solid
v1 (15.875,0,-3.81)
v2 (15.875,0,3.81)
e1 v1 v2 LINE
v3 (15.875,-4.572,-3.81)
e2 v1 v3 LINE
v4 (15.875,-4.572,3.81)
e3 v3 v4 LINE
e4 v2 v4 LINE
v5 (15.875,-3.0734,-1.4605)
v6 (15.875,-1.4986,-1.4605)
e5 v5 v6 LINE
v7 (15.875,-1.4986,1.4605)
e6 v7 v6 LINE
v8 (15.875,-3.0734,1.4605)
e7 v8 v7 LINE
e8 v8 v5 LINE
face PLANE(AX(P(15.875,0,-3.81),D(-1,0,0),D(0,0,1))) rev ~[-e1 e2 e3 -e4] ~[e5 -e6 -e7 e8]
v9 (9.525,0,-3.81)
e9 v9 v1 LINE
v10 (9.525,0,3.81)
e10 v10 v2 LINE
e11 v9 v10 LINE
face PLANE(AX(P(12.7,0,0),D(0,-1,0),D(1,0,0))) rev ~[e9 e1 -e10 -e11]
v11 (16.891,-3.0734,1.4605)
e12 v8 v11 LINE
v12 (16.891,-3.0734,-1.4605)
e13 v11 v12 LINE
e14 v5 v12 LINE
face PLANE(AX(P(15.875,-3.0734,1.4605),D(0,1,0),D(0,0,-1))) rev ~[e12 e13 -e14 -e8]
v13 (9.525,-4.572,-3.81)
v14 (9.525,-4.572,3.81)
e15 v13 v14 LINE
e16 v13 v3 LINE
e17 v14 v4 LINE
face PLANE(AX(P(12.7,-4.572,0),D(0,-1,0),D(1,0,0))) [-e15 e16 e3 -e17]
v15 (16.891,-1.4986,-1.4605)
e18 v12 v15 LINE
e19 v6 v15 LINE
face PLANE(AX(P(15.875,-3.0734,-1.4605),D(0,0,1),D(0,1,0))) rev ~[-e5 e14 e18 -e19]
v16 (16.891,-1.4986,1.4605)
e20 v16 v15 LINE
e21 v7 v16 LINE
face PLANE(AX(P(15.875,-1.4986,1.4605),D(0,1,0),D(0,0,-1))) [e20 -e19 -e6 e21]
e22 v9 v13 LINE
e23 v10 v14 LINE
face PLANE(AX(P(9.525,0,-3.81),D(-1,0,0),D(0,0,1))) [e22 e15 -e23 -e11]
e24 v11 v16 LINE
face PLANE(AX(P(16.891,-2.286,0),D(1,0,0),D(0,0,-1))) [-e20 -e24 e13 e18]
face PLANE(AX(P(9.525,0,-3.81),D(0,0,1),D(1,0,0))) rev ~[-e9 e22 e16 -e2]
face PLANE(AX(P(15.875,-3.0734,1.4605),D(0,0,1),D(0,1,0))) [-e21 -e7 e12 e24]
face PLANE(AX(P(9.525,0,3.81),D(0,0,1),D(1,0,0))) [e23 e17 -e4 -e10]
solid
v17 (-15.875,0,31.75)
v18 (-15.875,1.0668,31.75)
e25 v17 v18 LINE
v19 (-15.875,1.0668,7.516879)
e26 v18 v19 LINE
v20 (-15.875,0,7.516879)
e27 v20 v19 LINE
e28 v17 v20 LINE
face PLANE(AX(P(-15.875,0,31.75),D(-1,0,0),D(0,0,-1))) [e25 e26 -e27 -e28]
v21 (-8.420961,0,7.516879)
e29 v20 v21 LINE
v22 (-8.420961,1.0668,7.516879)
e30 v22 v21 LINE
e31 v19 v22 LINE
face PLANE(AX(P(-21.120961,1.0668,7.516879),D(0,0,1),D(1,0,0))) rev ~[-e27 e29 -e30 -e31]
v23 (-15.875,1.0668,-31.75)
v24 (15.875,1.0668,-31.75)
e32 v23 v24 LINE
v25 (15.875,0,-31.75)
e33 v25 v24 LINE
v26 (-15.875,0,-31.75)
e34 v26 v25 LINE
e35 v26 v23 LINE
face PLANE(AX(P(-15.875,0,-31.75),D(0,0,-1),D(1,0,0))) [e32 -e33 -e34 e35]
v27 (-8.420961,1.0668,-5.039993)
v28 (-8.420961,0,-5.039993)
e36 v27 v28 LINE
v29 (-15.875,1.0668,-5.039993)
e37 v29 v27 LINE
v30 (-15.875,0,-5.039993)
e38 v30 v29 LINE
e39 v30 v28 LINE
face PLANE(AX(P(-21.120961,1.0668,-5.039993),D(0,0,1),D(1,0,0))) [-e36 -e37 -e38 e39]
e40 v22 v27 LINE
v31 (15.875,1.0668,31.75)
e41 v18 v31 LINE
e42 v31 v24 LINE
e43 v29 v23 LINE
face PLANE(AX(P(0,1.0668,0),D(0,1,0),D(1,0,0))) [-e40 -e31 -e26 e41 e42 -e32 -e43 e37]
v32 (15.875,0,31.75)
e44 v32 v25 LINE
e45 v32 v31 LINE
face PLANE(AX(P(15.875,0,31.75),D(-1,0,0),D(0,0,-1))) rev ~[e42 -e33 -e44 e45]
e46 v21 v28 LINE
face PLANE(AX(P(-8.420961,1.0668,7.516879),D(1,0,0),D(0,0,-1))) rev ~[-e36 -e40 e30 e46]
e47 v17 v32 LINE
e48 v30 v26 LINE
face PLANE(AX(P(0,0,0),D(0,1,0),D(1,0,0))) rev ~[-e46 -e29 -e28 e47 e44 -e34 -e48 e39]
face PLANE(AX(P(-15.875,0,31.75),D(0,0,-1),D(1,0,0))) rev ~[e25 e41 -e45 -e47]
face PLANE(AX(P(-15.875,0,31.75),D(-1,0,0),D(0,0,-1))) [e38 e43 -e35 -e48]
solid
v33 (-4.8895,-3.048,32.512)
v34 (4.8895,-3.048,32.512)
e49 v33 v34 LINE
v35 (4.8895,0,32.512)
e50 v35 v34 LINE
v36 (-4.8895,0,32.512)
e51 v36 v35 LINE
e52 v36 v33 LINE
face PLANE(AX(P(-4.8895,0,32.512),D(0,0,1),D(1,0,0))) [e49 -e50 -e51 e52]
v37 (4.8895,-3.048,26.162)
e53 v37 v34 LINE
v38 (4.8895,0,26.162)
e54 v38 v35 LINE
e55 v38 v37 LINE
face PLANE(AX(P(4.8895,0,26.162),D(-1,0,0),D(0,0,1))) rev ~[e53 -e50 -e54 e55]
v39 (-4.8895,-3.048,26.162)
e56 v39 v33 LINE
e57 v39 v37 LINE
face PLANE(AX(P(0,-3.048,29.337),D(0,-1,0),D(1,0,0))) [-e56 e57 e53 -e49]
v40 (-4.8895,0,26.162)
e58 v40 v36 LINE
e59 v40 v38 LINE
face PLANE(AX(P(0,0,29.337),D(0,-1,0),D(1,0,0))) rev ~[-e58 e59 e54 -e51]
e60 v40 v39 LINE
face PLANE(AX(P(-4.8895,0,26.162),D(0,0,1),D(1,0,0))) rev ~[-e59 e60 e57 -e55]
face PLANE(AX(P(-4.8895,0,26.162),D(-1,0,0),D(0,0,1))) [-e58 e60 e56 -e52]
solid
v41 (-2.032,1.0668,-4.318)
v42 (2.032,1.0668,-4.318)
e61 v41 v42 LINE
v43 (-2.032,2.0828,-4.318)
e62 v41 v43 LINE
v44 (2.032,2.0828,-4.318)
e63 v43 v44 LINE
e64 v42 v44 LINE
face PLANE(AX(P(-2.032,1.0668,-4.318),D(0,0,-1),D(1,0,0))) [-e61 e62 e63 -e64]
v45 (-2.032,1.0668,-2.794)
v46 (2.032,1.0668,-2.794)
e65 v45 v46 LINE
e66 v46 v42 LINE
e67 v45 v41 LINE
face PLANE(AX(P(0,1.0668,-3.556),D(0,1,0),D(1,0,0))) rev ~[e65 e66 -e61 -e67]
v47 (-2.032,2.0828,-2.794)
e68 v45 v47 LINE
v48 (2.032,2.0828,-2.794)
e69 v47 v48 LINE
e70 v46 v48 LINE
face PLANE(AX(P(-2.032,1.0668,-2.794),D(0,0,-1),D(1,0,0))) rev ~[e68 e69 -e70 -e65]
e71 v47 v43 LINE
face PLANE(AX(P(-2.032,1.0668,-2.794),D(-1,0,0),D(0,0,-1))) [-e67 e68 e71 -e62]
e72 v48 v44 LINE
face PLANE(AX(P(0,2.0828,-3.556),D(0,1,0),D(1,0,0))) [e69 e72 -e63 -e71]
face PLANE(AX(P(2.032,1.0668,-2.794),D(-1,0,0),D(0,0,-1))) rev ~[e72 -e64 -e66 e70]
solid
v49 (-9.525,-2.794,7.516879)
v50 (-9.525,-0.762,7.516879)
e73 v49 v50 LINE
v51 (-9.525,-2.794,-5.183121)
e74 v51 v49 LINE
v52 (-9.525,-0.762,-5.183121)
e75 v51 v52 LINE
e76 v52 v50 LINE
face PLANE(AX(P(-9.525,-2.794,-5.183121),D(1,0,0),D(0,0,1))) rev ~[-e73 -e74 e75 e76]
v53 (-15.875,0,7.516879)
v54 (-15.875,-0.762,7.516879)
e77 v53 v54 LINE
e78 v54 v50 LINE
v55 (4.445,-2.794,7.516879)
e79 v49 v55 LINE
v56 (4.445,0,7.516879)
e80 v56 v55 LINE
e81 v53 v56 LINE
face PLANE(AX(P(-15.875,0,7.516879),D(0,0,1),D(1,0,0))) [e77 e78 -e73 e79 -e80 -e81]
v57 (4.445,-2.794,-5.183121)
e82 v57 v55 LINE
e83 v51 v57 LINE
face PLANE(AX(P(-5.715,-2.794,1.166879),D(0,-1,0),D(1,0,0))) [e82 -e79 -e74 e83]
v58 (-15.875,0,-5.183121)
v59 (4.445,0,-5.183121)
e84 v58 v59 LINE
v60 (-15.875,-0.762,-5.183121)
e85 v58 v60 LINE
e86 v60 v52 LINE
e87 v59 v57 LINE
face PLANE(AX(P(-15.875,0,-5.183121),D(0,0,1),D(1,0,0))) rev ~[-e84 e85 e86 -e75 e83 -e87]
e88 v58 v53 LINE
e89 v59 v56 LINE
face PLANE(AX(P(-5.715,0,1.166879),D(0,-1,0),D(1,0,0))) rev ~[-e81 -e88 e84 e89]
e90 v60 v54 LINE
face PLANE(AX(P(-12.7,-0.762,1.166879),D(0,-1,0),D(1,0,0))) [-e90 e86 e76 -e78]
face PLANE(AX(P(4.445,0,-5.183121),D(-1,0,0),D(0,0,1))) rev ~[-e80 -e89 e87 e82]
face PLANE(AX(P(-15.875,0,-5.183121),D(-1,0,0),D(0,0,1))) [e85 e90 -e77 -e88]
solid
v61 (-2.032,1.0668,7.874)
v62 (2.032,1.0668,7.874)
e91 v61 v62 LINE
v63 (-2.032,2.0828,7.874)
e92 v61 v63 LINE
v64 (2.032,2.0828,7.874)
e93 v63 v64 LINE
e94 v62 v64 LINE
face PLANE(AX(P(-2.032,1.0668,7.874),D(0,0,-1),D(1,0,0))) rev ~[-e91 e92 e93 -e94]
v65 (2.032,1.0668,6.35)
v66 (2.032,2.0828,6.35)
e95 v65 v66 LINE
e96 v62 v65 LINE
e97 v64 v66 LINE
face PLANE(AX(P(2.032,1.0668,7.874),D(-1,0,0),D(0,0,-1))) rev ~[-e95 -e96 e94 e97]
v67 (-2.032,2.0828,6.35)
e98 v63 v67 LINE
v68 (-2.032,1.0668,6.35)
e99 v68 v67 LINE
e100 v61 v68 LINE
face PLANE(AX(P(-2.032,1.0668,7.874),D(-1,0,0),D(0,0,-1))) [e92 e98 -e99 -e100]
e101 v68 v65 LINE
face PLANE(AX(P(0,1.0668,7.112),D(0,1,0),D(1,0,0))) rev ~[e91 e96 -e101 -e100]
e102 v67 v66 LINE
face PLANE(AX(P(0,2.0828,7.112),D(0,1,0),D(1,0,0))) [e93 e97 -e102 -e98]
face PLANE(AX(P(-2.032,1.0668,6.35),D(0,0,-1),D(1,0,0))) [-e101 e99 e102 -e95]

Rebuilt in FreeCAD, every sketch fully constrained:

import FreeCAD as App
import Part
import Sketcher

V = App.Vector
Q = App.Units.Quantity

doc = App.newDocument("Part")
body = doc.addObject("PartDesign::Body", "Body")

sketch1 = body.newObject("Sketcher::SketchObject", "Sketch")
sketch1.AttachmentSupport = (doc.getObject("XZ_Plane"), [""])
sketch1.MapMode = "FlatFace"
sketch1.addGeometry([
    Part.LineSegment(V(-16, -32, 0), V(-16, 32, 0)),
    Part.LineSegment(V(-16, 32, 0), V(16, 32, 0)),
    Part.LineSegment(V(16, 32, 0), V(16, -32, 0)),
    Part.LineSegment(V(16, -32, 0), V(-16, -32, 0)),
], False)
sketch1.addConstraint([
    Sketcher.Constraint("Coincident", 0, 2, 1, 1),
    Sketcher.Constraint("Coincident", 1, 2, 2, 1),
    Sketcher.Constraint("Coincident", 2, 2, 3, 1),
    Sketcher.Constraint("Coincident", 3, 2, 0, 1),
    Sketcher.Constraint("Vertical", 0),
    Sketcher.Constraint("Horizontal", 1),
    Sketcher.Constraint("Vertical", 2),
    Sketcher.Constraint("Horizontal", 3),
    Sketcher.Constraint("Symmetric", 0, 2, 2, 2, -1, 1),
    Sketcher.Constraint("DistanceY", 0, 1, 0, 2, Q("2.5 in")),
    Sketcher.Constraint("DistanceX", 1, 1, 1, 2, Q("1.25 in")),
])
pad1 = body.newObject("PartDesign::Pad", "Pad")
pad1.Profile = sketch1
pad1.Length = Q("0.042 in")
pad1.Reversed = True

sketch2 = body.newObject("Sketcher::SketchObject", "Sketch001")
sketch2.AttachmentSupport = (doc.getObject("XZ_Plane"), [""])
sketch2.MapMode = "FlatFace"
sketch2.AttachmentOffset = App.Placement(V(0, 0, -0.042 * 25.4), App.Rotation())
sketch2.addGeometry([
    Part.LineSegment(V(-21, -5, 0), V(-21, 8, 0)),
    Part.LineSegment(V(-21, 8, 0), V(-8, 8, 0)),
    Part.LineSegment(V(-8, 8, 0), V(-8, -5, 0)),
    Part.LineSegment(V(-8, -5, 0), V(-21, -5, 0)),
], False)
sketch2.addConstraint([
    Sketcher.Constraint("Coincident", 0, 2, 1, 1),
    Sketcher.Constraint("Coincident", 1, 2, 2, 1),
    Sketcher.Constraint("Coincident", 2, 2, 3, 1),
    Sketcher.Constraint("Coincident", 3, 2, 0, 1),
    Sketcher.Constraint("Vertical", 0),
    Sketcher.Constraint("Horizontal", 1),
    Sketcher.Constraint("Vertical", 2),
    Sketcher.Constraint("Horizontal", 3),
    Sketcher.Constraint("DistanceX", 1, 1, 1, 2, Q("0.5 in")),
    Sketcher.Constraint("DistanceY", 0, 1, 0, 2, Q("12.556872 mm")),
    Sketcher.Constraint("DistanceX", 0, 2, -1, 1, Q("21.120961 mm")),
    Sketcher.Constraint("DistanceY", -1, 1, 0, 2, Q("7.516879 mm")),
])
pocket1 = body.newObject("PartDesign::Pocket", "Pocket")
pocket1.Profile = sketch2
pocket1.Length = Q("0.042 in")
pocket1.Reversed = True
body2 = doc.addObject("PartDesign::Body", "Body001")

sketch3 = body2.newObject("Sketcher::SketchObject", "Sketch002")
sketch3.AttachmentSupport = (doc.getObject("XZ_Plane001"), [""])
sketch3.MapMode = "FlatFace"
sketch3.addGeometry([
    Part.LineSegment(V(-5, 33, 0), V(-5, 26, 0)),
    Part.LineSegment(V(-5, 26, 0), V(5, 26, 0)),
    Part.LineSegment(V(5, 26, 0), V(5, 33, 0)),
    Part.LineSegment(V(5, 33, 0), V(-5, 33, 0)),
], False)
sketch3.addConstraint([
    Sketcher.Constraint("Coincident", 0, 2, 1, 1),
    Sketcher.Constraint("Coincident", 1, 2, 2, 1),
    Sketcher.Constraint("Coincident", 2, 2, 3, 1),
    Sketcher.Constraint("Coincident", 3, 2, 0, 1),
    Sketcher.Constraint("Vertical", 0),
    Sketcher.Constraint("Horizontal", 1),
    Sketcher.Constraint("Vertical", 2),
    Sketcher.Constraint("Horizontal", 3),
    Sketcher.Constraint("DistanceY", 0, 2, 0, 1, Q("0.25 in")),
    Sketcher.Constraint("DistanceX", 1, 1, 1, 2, Q("0.385 in")),
    Sketcher.Constraint("DistanceY", -1, 1, 0, 2, Q("1.03 in")),
    Sketcher.Constraint("DistanceX", 0, 2, -1, 1, Q("0.1925 in")),
])
pad2 = body2.newObject("PartDesign::Pad", "Pad001")
pad2.Profile = sketch3
pad2.Length = Q("0.12 in")
body3 = doc.addObject("PartDesign::Body", "Body002")

sketch4 = body3.newObject("Sketcher::SketchObject", "Sketch003")
sketch4.AttachmentSupport = (doc.getObject("XZ_Plane002"), [""])
sketch4.MapMode = "FlatFace"
sketch4.AttachmentOffset = App.Placement(V(0, 0, -0.042 * 25.4), App.Rotation())
sketch4.addGeometry([
    Part.LineSegment(V(-2, -4.3, 0), V(-2, -2.8, 0)),
    Part.LineSegment(V(-2, -2.8, 0), V(2, -2.8, 0)),
    Part.LineSegment(V(2, -2.8, 0), V(2, -4.3, 0)),
    Part.LineSegment(V(2, -4.3, 0), V(-2, -4.3, 0)),
], False)
sketch4.addConstraint([
    Sketcher.Constraint("Coincident", 0, 2, 1, 1),
    Sketcher.Constraint("Coincident", 1, 2, 2, 1),
    Sketcher.Constraint("Coincident", 2, 2, 3, 1),
    Sketcher.Constraint("Coincident", 3, 2, 0, 1),
    Sketcher.Constraint("Vertical", 0),
    Sketcher.Constraint("Horizontal", 1),
    Sketcher.Constraint("Vertical", 2),
    Sketcher.Constraint("Horizontal", 3),
    Sketcher.Constraint("DistanceX", 1, 1, 1, 2, Q("0.16 in")),
    Sketcher.Constraint("DistanceY", 0, 1, 0, 2, Q("0.06 in")),
    Sketcher.Constraint("DistanceX", 0, 2, -1, 1, Q("0.08 in")),
    Sketcher.Constraint("DistanceY", 0, 2, -1, 1, Q("0.11 in")),
])
pad3 = body3.newObject("PartDesign::Pad", "Pad002")
pad3.Profile = sketch4
pad3.Length = Q("0.04 in")
pad3.Reversed = True
body4 = doc.addObject("PartDesign::Body", "Body003")

sketch5 = body4.newObject("Sketcher::SketchObject", "Sketch004")
sketch5.AttachmentSupport = (doc.getObject("XZ_Plane003"), [""])
sketch5.MapMode = "FlatFace"
sketch5.AttachmentOffset = App.Placement(V(0, 0, -0.042 * 25.4), App.Rotation())
sketch5.addGeometry([
    Part.LineSegment(V(-2, 6.3, 0), V(-2, 7.9, 0)),
    Part.LineSegment(V(-2, 7.9, 0), V(2, 7.9, 0)),
    Part.LineSegment(V(2, 7.9, 0), V(2, 6.3, 0)),
    Part.LineSegment(V(2, 6.3, 0), V(-2, 6.3, 0)),
], False)
sketch5.addConstraint([
    Sketcher.Constraint("Coincident", 0, 2, 1, 1),
    Sketcher.Constraint("Coincident", 1, 2, 2, 1),
    Sketcher.Constraint("Coincident", 2, 2, 3, 1),
    Sketcher.Constraint("Coincident", 3, 2, 0, 1),
    Sketcher.Constraint("Vertical", 0),
    Sketcher.Constraint("Horizontal", 1),
    Sketcher.Constraint("Vertical", 2),
    Sketcher.Constraint("Horizontal", 3),
    Sketcher.Constraint("DistanceX", 1, 1, 1, 2, Q("0.16 in")),
    Sketcher.Constraint("DistanceY", 0, 1, 0, 2, Q("0.06 in")),
    Sketcher.Constraint("DistanceX", 0, 2, -1, 1, Q("0.08 in")),
    Sketcher.Constraint("DistanceY", -1, 1, 0, 2, Q("0.31 in")),
])
pad4 = body4.newObject("PartDesign::Pad", "Pad003")
pad4.Profile = sketch5
pad4.Length = Q("0.04 in")
pad4.Reversed = True
body5 = doc.addObject("PartDesign::Body", "Body004")

sketch6 = body5.newObject("Sketcher::SketchObject", "Sketch005")
sketch6.AttachmentSupport = (doc.getObject("XZ_Plane004"), [""])
sketch6.MapMode = "FlatFace"
sketch6.addGeometry([
    Part.LineSegment(V(-16, 8, 0), V(-16, -5, 0)),
    Part.LineSegment(V(-16, -5, 0), V(4, -5, 0)),
    Part.LineSegment(V(4, -5, 0), V(4, 8, 0)),
    Part.LineSegment(V(4, 8, 0), V(-16, 8, 0)),
], False)
sketch6.addConstraint([
    Sketcher.Constraint("Coincident", 0, 2, 1, 1),
    Sketcher.Constraint("Coincident", 1, 2, 2, 1),
    Sketcher.Constraint("Coincident", 2, 2, 3, 1),
    Sketcher.Constraint("Coincident", 3, 2, 0, 1),
    Sketcher.Constraint("Vertical", 0),
    Sketcher.Constraint("Horizontal", 1),
    Sketcher.Constraint("Vertical", 2),
    Sketcher.Constraint("Horizontal", 3),
    Sketcher.Constraint("DistanceX", 1, 1, 1, 2, Q("0.8 in")),
    Sketcher.Constraint("DistanceY", 0, 2, 0, 1, Q("0.5 in")),
    Sketcher.Constraint("DistanceX", 0, 2, -1, 1, Q("0.625 in")),
    Sketcher.Constraint("DistanceY", 0, 2, -1, 1, Q("5.183121 mm")),
])
pad5 = body5.newObject("PartDesign::Pad", "Pad004")
pad5.Profile = sketch6
pad5.Length = Q("0.11 in")

sketch7 = body5.newObject("Sketcher::SketchObject", "Sketch006")
sketch7.AttachmentSupport = (doc.getObject("XZ_Plane004"), [""])
sketch7.MapMode = "FlatFace"
sketch7.AttachmentOffset = App.Placement(V(0, 0, 0.11 * 25.4), App.Rotation())
sketch7.addGeometry([
    Part.LineSegment(V(-16, 8, 0), V(-16, -5, 0)),
    Part.LineSegment(V(-16, -5, 0), V(-10, -5, 0)),
    Part.LineSegment(V(-10, -5, 0), V(-10, 8, 0)),
    Part.LineSegment(V(-10, 8, 0), V(-16, 8, 0)),
], False)
sketch7.addConstraint([
    Sketcher.Constraint("Coincident", 0, 2, 1, 1),
    Sketcher.Constraint("Coincident", 1, 2, 2, 1),
    Sketcher.Constraint("Coincident", 2, 2, 3, 1),
    Sketcher.Constraint("Coincident", 3, 2, 0, 1),
    Sketcher.Constraint("Vertical", 0),
    Sketcher.Constraint("Horizontal", 1),
    Sketcher.Constraint("Vertical", 2),
    Sketcher.Constraint("Horizontal", 3),
    Sketcher.Constraint("DistanceY", 0, 2, 0, 1, Q("0.5 in")),
    Sketcher.Constraint("DistanceX", 1, 1, 1, 2, Q("0.25 in")),
    Sketcher.Constraint("DistanceX", 0, 2, -1, 1, Q("0.625 in")),
    Sketcher.Constraint("DistanceY", 0, 2, -1, 1, Q("5.183121 mm")),
])
pocket2 = body5.newObject("PartDesign::Pocket", "Pocket001")
pocket2.Profile = sketch7
pocket2.Length = Q("0.08 in")
body6 = doc.addObject("PartDesign::Body", "Body005")

sketch8 = body6.newObject("Sketcher::SketchObject", "Sketch007")
sketch8.AttachmentSupport = (doc.getObject("XZ_Plane005"), [""])
sketch8.MapMode = "FlatFace"
sketch8.addGeometry([
    Part.LineSegment(V(10, 4, 0), V(10, -4, 0)),
    Part.LineSegment(V(10, -4, 0), V(16, -4, 0)),
    Part.LineSegment(V(16, -4, 0), V(16, 4, 0)),
    Part.LineSegment(V(16, 4, 0), V(10, 4, 0)),
], False)
sketch8.addConstraint([
    Sketcher.Constraint("Coincident", 0, 2, 1, 1),
    Sketcher.Constraint("Coincident", 1, 2, 2, 1),
    Sketcher.Constraint("Coincident", 2, 2, 3, 1),
    Sketcher.Constraint("Coincident", 3, 2, 0, 1),
    Sketcher.Constraint("Vertical", 0),
    Sketcher.Constraint("Horizontal", 1),
    Sketcher.Constraint("Vertical", 2),
    Sketcher.Constraint("Horizontal", 3),
    Sketcher.Constraint("DistanceY", 0, 2, 0, 1, Q("0.3 in")),
    Sketcher.Constraint("DistanceX", 1, 1, 1, 2, Q("0.25 in")),
    Sketcher.Constraint("DistanceY", 0, 2, -1, 1, Q("0.15 in")),
    Sketcher.Constraint("DistanceX", -1, 1, 0, 2, Q("0.375 in")),
])
pad6 = body6.newObject("PartDesign::Pad", "Pad005")
pad6.Profile = sketch8
pad6.Length = Q("0.18 in")

sketch9 = body6.newObject("Sketcher::SketchObject", "Sketch008")
sketch9.AttachmentSupport = (doc.getObject("YZ_Plane005"), [""])
sketch9.MapMode = "FlatFace"
sketch9.AttachmentOffset = App.Placement(V(0, 0, 0.625 * 25.4), App.Rotation())
sketch9.addGeometry([
    Part.LineSegment(V(-1.5, 1.5, 0), V(-3.1, 1.5, 0)),
    Part.LineSegment(V(-3.1, 1.5, 0), V(-3.1, -1.5, 0)),
    Part.LineSegment(V(-3.1, -1.5, 0), V(-1.5, -1.5, 0)),
    Part.LineSegment(V(-1.5, -1.5, 0), V(-1.5, 1.5, 0)),
], False)
sketch9.addConstraint([
    Sketcher.Constraint("Coincident", 0, 2, 1, 1),
    Sketcher.Constraint("Coincident", 1, 2, 2, 1),
    Sketcher.Constraint("Coincident", 2, 2, 3, 1),
    Sketcher.Constraint("Coincident", 3, 2, 0, 1),
    Sketcher.Constraint("Horizontal", 0),
    Sketcher.Constraint("Vertical", 1),
    Sketcher.Constraint("Horizontal", 2),
    Sketcher.Constraint("Vertical", 3),
    Sketcher.Constraint("DistanceX", 0, 2, 0, 1, Q("0.062 in")),
    Sketcher.Constraint("DistanceY", 1, 2, 1, 1, Q("0.115 in")),
    Sketcher.Constraint("DistanceX", 0, 2, -1, 1, Q("0.121 in")),
    Sketcher.Constraint("DistanceY", -1, 1, 0, 2, Q("0.0575 in")),
])
pad7 = body6.newObject("PartDesign::Pad", "Pad006")
pad7.Profile = sketch9
pad7.Length = Q("0.04 in")

doc.recompute()
